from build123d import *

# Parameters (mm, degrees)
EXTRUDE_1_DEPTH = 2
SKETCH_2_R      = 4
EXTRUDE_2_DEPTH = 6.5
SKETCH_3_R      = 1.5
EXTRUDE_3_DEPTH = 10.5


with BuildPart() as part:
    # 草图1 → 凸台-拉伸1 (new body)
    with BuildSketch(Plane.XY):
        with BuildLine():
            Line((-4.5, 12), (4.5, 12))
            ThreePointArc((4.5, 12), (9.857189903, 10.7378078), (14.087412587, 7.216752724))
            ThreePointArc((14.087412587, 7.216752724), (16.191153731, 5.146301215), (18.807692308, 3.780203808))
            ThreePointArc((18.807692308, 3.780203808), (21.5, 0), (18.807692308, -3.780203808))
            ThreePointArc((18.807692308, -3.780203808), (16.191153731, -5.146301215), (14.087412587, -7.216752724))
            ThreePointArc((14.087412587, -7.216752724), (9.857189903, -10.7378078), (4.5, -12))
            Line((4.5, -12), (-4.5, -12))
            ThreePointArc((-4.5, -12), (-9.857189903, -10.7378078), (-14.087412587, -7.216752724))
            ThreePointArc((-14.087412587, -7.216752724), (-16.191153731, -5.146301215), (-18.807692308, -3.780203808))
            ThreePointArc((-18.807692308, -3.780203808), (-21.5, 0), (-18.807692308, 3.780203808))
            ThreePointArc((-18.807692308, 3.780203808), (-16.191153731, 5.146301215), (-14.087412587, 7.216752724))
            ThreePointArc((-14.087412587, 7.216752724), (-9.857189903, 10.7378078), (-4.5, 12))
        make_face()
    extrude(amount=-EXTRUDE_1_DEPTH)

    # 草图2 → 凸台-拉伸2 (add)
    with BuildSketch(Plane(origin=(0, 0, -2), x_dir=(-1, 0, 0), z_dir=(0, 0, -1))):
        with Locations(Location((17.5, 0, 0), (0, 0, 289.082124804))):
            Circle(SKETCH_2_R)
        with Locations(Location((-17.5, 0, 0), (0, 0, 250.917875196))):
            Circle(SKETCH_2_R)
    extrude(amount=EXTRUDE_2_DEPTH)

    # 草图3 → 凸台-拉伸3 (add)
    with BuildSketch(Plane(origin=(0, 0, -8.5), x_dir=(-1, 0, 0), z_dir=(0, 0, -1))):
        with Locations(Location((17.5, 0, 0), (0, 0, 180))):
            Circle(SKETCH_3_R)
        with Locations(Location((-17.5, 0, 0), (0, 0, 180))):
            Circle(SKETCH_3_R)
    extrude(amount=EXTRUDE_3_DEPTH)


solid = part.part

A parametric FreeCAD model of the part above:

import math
import FreeCAD as App
import Part
import Sketcher

doc = App.newDocument("Part")
params = doc.addObject("Spreadsheet::Sheet", "Params")
for row, (alias, value) in enumerate([
    ("sketch1_radius", "12 mm"),
    ("sketch1_radius2", "10 mm"),
    ("sketch1_radius3", "4 mm"),
    ("sketch1_width", "9 mm"),
    ("pad1_length", "2 mm"),
    ("sketch2_diameter", "8 mm"),
    ("pad2_length", "6.5 mm"),
    ("sketch3_diameter", "3 mm"),
    ("pad3_length", "10.5 mm"),
], start=1):
    params.set(f"A{row}", alias)
    params.set(f"B{row}", "=" + value)
    params.setAlias(f"B{row}", alias)

body = doc.addObject("PartDesign::Body", "Body")

# Sketch on XY plane
sketch1 = body.newObject("Sketcher::SketchObject", "Sketch")
sketch1.AttachmentSupport = (doc.getObject("XY_Plane"), [""])
sketch1.MapMode = "FlatFace"
sketch1.addGeometry([
    Part.LineSegment(App.Vector(4.5, 12, 0), App.Vector(-4.5, 12, 0)),  # 0
    Part.ArcOfCircle(Part.Circle(App.Vector(-4.5, 0, 0), App.Vector(0, 0, 1), 12), math.radians(90), math.radians(143)),  # 1
    Part.ArcOfCircle(Part.Circle(App.Vector(-22.1, 13.2, 0), App.Vector(0, 0, 1), 10), math.radians(-71), math.radians(-37)),  # 2
    Part.ArcOfCircle(Part.Circle(App.Vector(-17.5, 0, 0), App.Vector(0, 0, 1), 4), math.radians(109), math.radians(251)),  # 3
    Part.ArcOfCircle(Part.Circle(App.Vector(-22.1, -13.2, 0), App.Vector(0, 0, 1), 10), math.radians(37), math.radians(71)),  # 4
    Part.ArcOfCircle(Part.Circle(App.Vector(-4.5, 0, 0), App.Vector(0, 0, 1), 12), math.radians(-143), math.radians(-90)),  # 5
    Part.LineSegment(App.Vector(-4.5, -12, 0), App.Vector(4.5, -12, 0)),  # 6
    Part.ArcOfCircle(Part.Circle(App.Vector(4.5, 0, 0), App.Vector(0, 0, 1), 12), math.radians(-90), math.radians(-37)),  # 7
    Part.ArcOfCircle(Part.Circle(App.Vector(22.1, -13.2, 0), App.Vector(0, 0, 1), 10), math.radians(109), math.radians(143)),  # 8
    Part.ArcOfCircle(Part.Circle(App.Vector(17.5, 0, 0), App.Vector(0, 0, 1), 4), math.radians(-71), math.radians(71)),  # 9
    Part.ArcOfCircle(Part.Circle(App.Vector(22.1, 13.2, 0), App.Vector(0, 0, 1), 10), math.radians(-143), math.radians(-109)),  # 10
    Part.ArcOfCircle(Part.Circle(App.Vector(4.5, 0, 0), App.Vector(0, 0, 1), 12), math.radians(37), math.radians(90)),  # 11
], False)
sketch1.addConstraint([
    Sketcher.Constraint("Tangent", 0, 2, 1, 1),
    Sketcher.Constraint("Tangent", 1, 2, 2, 2),
    Sketcher.Constraint("Tangent", 2, 1, 3, 1),
    Sketcher.Constraint("Tangent", 3, 2, 4, 2),
    Sketcher.Constraint("Tangent", 4, 1, 5, 1),
    Sketcher.Constraint("Tangent", 5, 2, 6, 1),
    Sketcher.Constraint("Tangent", 6, 2, 7, 1),
    Sketcher.Constraint("Tangent", 7, 2, 8, 2),
    Sketcher.Constraint("Tangent", 8, 1, 9, 1),
    Sketcher.Constraint("Tangent", 9, 2, 10, 2),
    Sketcher.Constraint("Tangent", 10, 1, 11, 1),
    Sketcher.Constraint("Tangent", 11, 2, 0, 1),
    Sketcher.Constraint("Horizontal", 0),
    Sketcher.Constraint("Horizontal", 6),
    Sketcher.Constraint("Coincident", 5, 3, 1, 3),
    Sketcher.Constraint("Coincident", 11, 3, 7, 3),
    Sketcher.Constraint("Equal", 2, 4),
    Sketcher.Constraint("Equal", 1, 5),
    Sketcher.Constraint("Equal", 5, 7),
    Sketcher.Constraint("Equal", 4, 8),
    Sketcher.Constraint("Equal", 3, 9),
    Sketcher.Constraint("Equal", 8, 10),
    Sketcher.Constraint("Symmetric", 1, 3, 7, 3, -1, 1),
    Sketcher.Constraint("Symmetric", 3, 3, 9, 3, -1, 1),
    Sketcher.Constraint("PointOnObject", 3, 3, -1),
    Sketcher.Constraint("Radius", 1, 12.0),
    Sketcher.Constraint("Radius", 2, 10.0),
    Sketcher.Constraint("Radius", 3, 4.0),
    Sketcher.Constraint("DistanceX", 0, 2, 0, 1, 9.0),
    Sketcher.Constraint("DistanceX", 3, 3, 1, 3, 13.0),
])
sketch1.setExpression("Constraints[25]", "Params.sketch1_radius")
sketch1.setExpression("Constraints[26]", "Params.sketch1_radius2")
sketch1.setExpression("Constraints[27]", "Params.sketch1_radius3")
sketch1.setExpression("Constraints[28]", "Params.sketch1_width")
pad1 = body.newObject("PartDesign::Pad", "Pad")
pad1.Profile = sketch1
pad1.setExpression("Length", "Params.pad1_length")
pad1.Reversed = True

# Sketch on XY plane
sketch2 = body.newObject("Sketcher::SketchObject", "Sketch001")
sketch2.AttachmentSupport = (doc.getObject("XY_Plane"), [""])
sketch2.MapMode = "FlatFace"
sketch2.AttachmentOffset = App.Placement(App.Vector(0, 0, -2), App.Rotation())
sketch2.addGeometry([
    Part.Circle(App.Vector(-17.5, 0, 0), App.Vector(0, 0, 1), 4),
    Part.Circle(App.Vector(17.5, 0, 0), App.Vector(0, 0, 1), 4),
], False)
sketch2.addConstraint([
    Sketcher.Constraint("Equal", 0, 1),
    Sketcher.Constraint("Symmetric", 0, 3, 1, 3, -1, 1),
    Sketcher.Constraint("PointOnObject", 0, 3, -1),
    Sketcher.Constraint("Diameter", 0, 8.0),
    Sketcher.Constraint("DistanceX", 0, 3, 1, 3, 35.0),
])
sketch2.setExpression("Constraints[3]", "Params.sketch2_diameter")
pad2 = body.newObject("PartDesign::Pad", "Pad001")
pad2.Profile = sketch2
pad2.setExpression("Length", "Params.pad2_length")
pad2.Reversed = True

# Sketch on XY plane
sketch3 = body.newObject("Sketcher::SketchObject", "Sketch002")
sketch3.AttachmentSupport = (doc.getObject("XY_Plane"), [""])
sketch3.MapMode = "FlatFace"
sketch3.AttachmentOffset = App.Placement(App.Vector(0, 0, -8.5), App.Rotation())
sketch3.addGeometry([
    Part.Circle(App.Vector(-17.5, 0, 0), App.Vector(0, 0, 1), 1.5),
    Part.Circle(App.Vector(17.5, 0, 0), App.Vector(0, 0, 1), 1.5),
], False)
sketch3.addConstraint([
    Sketcher.Constraint("Equal", 0, 1),
    Sketcher.Constraint("Symmetric", 0, 3, 1, 3, -1, 1),
    Sketcher.Constraint("PointOnObject", 0, 3, -1),
    Sketcher.Constraint("Diameter", 0, 3.0),
    Sketcher.Constraint("DistanceX", 0, 3, 1, 3, 35.0),
])
sketch3.setExpression("Constraints[3]", "Params.sketch3_diameter")
pad3 = body.newObject("PartDesign::Pad", "Pad002")
pad3.Profile = sketch3
pad3.setExpression("Length", "Params.pad3_length")
pad3.Reversed = True

doc.recompute()
